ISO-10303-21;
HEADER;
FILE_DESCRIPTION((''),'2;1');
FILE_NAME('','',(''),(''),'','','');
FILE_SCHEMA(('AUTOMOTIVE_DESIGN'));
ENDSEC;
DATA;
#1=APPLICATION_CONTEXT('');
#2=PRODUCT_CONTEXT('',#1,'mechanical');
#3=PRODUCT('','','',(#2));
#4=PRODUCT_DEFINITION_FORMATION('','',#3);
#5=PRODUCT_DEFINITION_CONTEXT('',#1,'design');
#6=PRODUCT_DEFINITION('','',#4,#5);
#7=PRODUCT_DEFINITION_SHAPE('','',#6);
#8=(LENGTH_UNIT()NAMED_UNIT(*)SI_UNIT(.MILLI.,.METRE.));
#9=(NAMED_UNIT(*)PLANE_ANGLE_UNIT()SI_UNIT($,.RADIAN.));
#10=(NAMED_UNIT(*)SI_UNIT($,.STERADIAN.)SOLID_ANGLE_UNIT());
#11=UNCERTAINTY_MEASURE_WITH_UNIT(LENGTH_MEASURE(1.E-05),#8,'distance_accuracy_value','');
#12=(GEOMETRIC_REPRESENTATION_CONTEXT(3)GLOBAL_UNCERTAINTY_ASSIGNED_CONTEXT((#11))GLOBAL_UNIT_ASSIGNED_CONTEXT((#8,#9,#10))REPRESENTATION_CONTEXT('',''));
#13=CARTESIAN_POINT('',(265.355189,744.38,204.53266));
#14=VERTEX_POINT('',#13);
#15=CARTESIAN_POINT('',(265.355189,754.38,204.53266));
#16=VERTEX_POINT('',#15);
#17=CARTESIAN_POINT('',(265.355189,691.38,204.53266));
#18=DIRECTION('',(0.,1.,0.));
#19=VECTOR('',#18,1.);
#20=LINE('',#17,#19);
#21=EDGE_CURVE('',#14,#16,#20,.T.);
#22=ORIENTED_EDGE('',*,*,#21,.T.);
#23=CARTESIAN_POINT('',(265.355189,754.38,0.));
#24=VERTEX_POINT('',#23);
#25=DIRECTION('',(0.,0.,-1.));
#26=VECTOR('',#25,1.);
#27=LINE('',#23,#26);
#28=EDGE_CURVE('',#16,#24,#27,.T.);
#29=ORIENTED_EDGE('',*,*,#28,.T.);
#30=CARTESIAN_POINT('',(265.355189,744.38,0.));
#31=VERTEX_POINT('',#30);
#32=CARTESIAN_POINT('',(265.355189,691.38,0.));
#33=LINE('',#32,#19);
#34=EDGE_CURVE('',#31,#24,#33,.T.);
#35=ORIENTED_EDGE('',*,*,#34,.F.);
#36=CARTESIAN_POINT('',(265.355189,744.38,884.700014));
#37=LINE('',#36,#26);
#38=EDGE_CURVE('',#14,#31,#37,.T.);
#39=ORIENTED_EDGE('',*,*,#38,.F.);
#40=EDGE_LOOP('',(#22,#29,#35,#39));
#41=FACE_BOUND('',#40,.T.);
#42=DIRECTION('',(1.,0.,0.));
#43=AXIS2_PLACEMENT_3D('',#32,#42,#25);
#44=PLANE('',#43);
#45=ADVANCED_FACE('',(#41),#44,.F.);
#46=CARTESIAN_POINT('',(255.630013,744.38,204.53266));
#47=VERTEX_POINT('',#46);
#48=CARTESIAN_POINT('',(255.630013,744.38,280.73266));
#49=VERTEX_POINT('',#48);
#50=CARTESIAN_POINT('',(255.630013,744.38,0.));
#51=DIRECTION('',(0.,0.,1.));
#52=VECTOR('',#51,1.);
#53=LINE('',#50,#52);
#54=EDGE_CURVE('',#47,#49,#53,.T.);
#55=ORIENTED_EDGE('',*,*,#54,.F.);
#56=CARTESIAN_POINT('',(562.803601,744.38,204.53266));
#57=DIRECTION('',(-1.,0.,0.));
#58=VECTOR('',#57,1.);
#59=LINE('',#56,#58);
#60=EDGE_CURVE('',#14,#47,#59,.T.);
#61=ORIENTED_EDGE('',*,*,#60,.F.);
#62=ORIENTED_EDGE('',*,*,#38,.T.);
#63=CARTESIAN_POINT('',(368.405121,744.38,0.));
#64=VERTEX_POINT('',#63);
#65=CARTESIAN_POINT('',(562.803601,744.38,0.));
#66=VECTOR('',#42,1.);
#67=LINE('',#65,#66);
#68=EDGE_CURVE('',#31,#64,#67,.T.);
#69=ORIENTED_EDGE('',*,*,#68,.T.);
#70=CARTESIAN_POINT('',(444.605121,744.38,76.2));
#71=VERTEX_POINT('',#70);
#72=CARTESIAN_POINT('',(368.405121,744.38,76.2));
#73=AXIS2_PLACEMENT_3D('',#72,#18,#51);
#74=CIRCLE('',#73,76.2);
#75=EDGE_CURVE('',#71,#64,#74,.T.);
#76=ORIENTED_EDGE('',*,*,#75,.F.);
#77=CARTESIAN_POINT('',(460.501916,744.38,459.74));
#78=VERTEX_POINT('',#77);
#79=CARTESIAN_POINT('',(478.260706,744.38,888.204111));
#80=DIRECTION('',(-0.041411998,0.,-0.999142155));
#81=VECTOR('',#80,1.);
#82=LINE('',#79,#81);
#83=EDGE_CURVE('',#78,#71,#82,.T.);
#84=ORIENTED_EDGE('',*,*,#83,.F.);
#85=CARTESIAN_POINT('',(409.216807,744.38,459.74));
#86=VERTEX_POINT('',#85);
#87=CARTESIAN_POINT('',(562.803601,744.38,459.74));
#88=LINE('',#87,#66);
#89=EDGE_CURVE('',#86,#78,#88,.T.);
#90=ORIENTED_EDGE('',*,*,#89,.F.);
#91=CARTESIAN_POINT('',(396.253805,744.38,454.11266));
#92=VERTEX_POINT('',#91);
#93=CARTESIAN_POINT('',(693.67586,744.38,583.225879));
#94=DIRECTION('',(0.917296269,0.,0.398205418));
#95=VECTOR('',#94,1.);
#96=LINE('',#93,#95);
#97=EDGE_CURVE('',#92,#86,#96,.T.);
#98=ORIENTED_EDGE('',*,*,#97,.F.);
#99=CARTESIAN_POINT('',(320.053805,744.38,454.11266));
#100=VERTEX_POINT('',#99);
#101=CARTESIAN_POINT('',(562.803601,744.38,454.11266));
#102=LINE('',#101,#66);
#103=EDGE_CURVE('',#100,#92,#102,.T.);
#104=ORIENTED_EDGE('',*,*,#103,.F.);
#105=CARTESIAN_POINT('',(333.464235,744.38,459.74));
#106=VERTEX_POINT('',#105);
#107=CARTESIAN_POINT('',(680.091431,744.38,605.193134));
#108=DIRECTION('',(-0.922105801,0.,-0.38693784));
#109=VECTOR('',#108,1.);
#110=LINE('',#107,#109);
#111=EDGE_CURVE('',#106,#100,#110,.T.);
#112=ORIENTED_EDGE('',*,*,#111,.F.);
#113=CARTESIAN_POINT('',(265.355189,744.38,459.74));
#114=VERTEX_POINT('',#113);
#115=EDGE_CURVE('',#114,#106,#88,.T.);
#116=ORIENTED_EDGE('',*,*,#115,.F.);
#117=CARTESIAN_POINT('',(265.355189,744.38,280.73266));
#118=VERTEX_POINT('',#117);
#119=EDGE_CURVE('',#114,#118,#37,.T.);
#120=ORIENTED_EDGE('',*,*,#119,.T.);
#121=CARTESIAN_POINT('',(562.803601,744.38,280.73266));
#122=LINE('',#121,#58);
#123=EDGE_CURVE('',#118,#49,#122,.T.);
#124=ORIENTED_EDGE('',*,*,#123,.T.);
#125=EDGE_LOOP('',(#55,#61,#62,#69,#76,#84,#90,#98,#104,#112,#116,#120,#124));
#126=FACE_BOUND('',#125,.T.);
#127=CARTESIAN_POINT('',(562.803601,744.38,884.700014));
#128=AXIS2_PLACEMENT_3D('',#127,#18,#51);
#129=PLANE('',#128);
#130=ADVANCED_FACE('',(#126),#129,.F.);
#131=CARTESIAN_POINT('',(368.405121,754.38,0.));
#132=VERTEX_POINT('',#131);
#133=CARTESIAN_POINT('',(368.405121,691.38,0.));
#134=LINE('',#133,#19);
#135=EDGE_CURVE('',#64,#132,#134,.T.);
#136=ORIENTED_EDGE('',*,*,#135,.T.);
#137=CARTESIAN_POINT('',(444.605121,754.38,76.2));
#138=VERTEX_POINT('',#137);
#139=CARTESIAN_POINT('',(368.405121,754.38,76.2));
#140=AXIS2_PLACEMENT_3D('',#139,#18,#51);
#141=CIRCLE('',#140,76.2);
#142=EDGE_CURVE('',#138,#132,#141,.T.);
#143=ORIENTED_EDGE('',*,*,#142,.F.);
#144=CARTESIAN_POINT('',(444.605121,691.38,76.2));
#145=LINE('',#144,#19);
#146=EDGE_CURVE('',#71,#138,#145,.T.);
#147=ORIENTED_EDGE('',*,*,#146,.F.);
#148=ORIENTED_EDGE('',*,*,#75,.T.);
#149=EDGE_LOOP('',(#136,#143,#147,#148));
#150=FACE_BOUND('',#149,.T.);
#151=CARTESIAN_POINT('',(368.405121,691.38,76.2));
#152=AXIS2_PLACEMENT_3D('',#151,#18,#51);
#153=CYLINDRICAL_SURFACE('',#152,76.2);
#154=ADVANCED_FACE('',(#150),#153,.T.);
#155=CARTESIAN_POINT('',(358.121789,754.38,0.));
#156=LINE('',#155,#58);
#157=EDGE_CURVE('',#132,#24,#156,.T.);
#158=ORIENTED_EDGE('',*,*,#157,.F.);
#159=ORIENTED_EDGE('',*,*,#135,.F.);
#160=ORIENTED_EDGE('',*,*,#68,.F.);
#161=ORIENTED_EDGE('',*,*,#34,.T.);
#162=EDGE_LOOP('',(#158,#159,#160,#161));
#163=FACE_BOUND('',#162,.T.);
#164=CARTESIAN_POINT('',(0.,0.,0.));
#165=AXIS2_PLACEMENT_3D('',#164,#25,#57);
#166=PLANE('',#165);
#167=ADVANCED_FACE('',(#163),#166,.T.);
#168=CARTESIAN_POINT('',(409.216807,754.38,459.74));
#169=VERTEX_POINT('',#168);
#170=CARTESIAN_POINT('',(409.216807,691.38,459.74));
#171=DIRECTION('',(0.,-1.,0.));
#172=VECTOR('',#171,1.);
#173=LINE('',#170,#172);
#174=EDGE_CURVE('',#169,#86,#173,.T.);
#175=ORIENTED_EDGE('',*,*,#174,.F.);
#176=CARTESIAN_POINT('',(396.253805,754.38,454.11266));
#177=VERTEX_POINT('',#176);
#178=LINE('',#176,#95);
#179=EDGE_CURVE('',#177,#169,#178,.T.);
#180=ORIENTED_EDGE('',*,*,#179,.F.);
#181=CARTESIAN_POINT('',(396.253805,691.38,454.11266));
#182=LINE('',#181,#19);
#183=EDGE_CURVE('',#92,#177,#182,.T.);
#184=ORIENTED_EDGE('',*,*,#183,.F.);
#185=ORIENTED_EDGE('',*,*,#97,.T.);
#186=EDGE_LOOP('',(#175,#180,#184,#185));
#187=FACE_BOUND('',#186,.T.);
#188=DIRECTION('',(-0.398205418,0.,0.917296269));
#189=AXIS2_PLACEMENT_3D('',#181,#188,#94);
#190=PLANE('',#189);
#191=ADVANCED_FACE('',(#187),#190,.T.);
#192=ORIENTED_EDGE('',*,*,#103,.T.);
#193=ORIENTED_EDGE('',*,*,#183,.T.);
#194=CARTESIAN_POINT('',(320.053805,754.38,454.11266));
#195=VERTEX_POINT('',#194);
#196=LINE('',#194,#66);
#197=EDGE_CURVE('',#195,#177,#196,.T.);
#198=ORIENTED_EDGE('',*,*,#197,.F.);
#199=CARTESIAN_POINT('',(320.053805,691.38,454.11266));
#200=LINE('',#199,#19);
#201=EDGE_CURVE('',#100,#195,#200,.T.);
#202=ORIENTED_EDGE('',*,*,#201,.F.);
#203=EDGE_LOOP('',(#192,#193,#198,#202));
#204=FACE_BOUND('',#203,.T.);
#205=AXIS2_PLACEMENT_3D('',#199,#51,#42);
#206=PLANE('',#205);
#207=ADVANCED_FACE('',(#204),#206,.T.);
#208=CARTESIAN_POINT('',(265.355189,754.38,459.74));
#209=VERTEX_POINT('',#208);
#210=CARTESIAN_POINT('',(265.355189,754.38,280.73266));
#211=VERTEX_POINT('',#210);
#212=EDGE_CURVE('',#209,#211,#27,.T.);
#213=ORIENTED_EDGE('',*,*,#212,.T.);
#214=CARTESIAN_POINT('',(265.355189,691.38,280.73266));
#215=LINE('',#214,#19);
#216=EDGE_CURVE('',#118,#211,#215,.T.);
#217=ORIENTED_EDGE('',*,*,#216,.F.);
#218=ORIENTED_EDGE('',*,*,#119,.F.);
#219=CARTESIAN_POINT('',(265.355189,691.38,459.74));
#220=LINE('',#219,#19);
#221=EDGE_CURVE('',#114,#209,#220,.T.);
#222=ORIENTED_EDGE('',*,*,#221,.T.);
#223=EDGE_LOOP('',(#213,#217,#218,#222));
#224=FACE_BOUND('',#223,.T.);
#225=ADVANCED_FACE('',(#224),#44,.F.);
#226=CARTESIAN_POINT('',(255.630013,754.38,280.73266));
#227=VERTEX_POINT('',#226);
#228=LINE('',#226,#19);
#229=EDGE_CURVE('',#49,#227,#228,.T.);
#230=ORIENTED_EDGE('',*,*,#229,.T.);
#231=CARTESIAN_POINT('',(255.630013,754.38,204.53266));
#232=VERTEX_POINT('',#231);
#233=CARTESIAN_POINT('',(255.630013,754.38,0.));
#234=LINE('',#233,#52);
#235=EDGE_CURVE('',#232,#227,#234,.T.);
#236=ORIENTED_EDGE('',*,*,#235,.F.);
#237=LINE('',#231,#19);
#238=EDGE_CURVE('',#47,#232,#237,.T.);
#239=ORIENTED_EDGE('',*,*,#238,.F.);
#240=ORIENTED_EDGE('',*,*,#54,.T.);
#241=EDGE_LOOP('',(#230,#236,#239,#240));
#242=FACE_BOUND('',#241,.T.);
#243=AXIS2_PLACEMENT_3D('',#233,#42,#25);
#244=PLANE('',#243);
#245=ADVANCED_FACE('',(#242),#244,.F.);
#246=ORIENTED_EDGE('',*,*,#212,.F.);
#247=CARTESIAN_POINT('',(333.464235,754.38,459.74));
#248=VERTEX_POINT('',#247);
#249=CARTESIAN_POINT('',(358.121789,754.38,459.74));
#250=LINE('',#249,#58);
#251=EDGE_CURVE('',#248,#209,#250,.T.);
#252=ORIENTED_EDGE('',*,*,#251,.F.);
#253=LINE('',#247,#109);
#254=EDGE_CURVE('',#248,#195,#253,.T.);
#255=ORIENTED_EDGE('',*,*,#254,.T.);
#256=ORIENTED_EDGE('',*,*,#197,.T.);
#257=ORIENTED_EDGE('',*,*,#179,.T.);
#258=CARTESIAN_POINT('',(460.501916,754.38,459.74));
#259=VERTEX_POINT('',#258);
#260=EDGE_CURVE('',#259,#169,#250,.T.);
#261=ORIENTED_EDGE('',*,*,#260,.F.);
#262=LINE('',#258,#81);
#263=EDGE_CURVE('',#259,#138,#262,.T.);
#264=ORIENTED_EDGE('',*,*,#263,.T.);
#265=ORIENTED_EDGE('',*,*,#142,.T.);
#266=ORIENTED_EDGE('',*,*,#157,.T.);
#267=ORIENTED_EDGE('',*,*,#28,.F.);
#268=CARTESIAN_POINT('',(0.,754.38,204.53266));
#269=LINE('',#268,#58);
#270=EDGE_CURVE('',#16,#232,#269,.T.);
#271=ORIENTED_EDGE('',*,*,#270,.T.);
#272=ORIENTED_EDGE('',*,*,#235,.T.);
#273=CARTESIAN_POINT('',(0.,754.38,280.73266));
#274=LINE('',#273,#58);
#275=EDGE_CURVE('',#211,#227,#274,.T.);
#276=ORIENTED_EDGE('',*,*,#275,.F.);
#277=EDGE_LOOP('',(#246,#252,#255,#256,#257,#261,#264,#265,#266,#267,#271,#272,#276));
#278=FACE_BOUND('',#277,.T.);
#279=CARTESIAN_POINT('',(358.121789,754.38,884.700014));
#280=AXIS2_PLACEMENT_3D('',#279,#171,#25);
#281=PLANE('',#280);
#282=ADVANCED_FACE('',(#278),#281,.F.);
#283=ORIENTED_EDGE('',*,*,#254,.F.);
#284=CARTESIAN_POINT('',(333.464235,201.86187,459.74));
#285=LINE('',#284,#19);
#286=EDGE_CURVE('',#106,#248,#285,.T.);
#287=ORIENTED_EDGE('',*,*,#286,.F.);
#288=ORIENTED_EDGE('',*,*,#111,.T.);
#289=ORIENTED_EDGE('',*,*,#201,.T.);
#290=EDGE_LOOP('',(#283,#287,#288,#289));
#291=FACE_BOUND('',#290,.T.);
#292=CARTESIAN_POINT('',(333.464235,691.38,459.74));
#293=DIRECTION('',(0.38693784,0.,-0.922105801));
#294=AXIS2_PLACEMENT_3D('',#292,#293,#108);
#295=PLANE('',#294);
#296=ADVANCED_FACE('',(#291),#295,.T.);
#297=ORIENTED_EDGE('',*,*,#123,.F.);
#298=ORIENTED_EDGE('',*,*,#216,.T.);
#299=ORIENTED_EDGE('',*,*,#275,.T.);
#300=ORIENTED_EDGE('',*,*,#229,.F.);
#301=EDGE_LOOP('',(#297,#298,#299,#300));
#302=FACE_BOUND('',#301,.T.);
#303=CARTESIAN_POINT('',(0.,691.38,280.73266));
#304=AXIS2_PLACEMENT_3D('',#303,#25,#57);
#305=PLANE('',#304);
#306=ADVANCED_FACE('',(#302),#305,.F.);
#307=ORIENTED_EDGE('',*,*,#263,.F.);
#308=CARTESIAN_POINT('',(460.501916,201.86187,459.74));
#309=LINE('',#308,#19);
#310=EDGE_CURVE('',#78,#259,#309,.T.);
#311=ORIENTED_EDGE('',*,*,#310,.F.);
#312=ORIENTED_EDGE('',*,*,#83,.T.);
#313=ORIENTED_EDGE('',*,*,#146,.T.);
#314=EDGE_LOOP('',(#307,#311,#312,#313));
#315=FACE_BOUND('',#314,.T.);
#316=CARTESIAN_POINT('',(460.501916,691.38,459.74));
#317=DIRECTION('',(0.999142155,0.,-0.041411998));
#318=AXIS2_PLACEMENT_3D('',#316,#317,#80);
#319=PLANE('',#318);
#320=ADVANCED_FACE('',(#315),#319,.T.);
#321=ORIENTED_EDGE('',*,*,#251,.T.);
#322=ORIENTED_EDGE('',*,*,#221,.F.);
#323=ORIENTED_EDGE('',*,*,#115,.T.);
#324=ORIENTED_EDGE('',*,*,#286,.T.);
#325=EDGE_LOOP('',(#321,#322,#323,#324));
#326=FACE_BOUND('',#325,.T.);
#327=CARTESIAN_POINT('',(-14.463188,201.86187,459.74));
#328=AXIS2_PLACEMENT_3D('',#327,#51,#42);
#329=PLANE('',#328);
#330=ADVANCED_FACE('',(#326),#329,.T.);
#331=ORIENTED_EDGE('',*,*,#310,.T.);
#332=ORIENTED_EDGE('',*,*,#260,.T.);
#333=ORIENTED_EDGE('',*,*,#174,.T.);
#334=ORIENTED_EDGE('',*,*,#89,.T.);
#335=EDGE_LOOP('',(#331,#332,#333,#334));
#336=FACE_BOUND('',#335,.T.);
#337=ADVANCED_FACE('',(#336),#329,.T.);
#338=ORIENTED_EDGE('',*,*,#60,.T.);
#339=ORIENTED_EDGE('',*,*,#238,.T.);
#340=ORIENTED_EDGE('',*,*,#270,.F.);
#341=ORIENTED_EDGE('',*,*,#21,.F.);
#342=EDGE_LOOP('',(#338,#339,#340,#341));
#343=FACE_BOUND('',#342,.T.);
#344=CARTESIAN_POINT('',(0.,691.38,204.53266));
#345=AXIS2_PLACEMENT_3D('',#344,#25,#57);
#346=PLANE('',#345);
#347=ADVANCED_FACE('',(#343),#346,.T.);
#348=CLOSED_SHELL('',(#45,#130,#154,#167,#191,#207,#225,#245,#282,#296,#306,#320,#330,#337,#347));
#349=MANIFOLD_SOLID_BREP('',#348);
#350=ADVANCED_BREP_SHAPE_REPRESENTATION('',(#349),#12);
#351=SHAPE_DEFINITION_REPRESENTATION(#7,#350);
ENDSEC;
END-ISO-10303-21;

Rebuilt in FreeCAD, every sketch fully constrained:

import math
import FreeCAD as App
import Part
import Sketcher
from FreeCAD import Vector
Q = App.Units.Quantity

doc = App.newDocument("Part")
body = doc.addObject("PartDesign::Body", "Body")

sketch1 = doc.addObject("Sketcher::SketchObject", "Sketch")
body.addObject(sketch1)
sketch1.AttachmentSupport = (doc.XY_Plane, [""])
sketch1.MapMode = "FlatFace"
sketch1.addGeometry([
    Part.LineSegment(Vector(138, 754, 0), Vector(138, 744, 0)),
    Part.LineSegment(Vector(138, 744, 0), Vector(563, 744, 0)),
    Part.LineSegment(Vector(563, 744, 0), Vector(563, 754, 0)),
    Part.LineSegment(Vector(563, 754, 0), Vector(138, 754, 0)),
], False)
sketch1.addConstraint([
    Sketcher.Constraint("Coincident", 0, 2, 1, 1),
    Sketcher.Constraint("Coincident", 1, 2, 2, 1),
    Sketcher.Constraint("Coincident", 2, 2, 3, 1),
    Sketcher.Constraint("Coincident", 3, 2, 0, 1),
    Sketcher.Constraint("Vertical", 0),
    Sketcher.Constraint("Horizontal", 1),
    Sketcher.Constraint("Vertical", 2),
    Sketcher.Constraint("Horizontal", 3),
    Sketcher.Constraint("DistanceY", -1, 1, 2, 2, Q("29.7 in")),
    Sketcher.Constraint("DistanceY", 0, 2, 0, 1, 10.0),
    Sketcher.Constraint("DistanceX", 1, 1, 1, 2, 424.84234),
    Sketcher.Constraint("DistanceX", -1, 1, 1, 2, 562.803601),
])
pad1 = doc.addObject("PartDesign::Pad", "Pad")
body.addObject(pad1)
pad1.Profile = sketch1
pad1.Length = Q("18.1 in")

sketch2 = doc.addObject("Sketcher::SketchObject", "Sketch001")
body.addObject(sketch2)
sketch2.AttachmentSupport = (doc.XZ_Plane, [""])
sketch2.MapMode = "FlatFace"
sketch2.AttachmentOffset = App.Placement(Vector(0, 0, -744.38), App.Rotation())
sketch2.addGeometry([
    Part.LineSegment(Vector(138, 460, 0), Vector(138, 0, 0)),
    Part.LineSegment(Vector(138, 0, 0), Vector(256, 0, 0)),
    Part.LineSegment(Vector(256, 0, 0), Vector(256, 460, 0)),
    Part.LineSegment(Vector(256, 460, 0), Vector(138, 460, 0)),
], False)
sketch2.addConstraint([
    Sketcher.Constraint("Coincident", 0, 2, 1, 1),
    Sketcher.Constraint("Coincident", 1, 2, 2, 1),
    Sketcher.Constraint("Coincident", 2, 2, 3, 1),
    Sketcher.Constraint("Coincident", 3, 2, 0, 1),
    Sketcher.Constraint("Vertical", 0),
    Sketcher.Constraint("Horizontal", 1),
    Sketcher.Constraint("Vertical", 2),
    Sketcher.Constraint("Horizontal", 3),
    Sketcher.Constraint("PointOnObject", 0, 2, -1),
    Sketcher.Constraint("DistanceY", 0, 2, 0, 1, Q("18.1 in")),
    Sketcher.Constraint("DistanceX", 1, 1, 1, 2, 117.668752),
    Sketcher.Constraint("DistanceX", -1, 1, 0, 2, 137.961261),
])
pocket1 = doc.addObject("PartDesign::Pocket", "Pocket")
body.addObject(pocket1)
pocket1.Profile = sketch2
pocket1.Length = 10

sketch3 = doc.addObject("Sketcher::SketchObject", "Sketch002")
body.addObject(sketch3)
sketch3.AttachmentSupport = (doc.XZ_Plane, [""])
sketch3.MapMode = "FlatFace"
sketch3.AttachmentOffset = App.Placement(Vector(0, 0, -29.7 * 25.4), App.Rotation())
sketch3.addGeometry([
    Part.LineSegment(Vector(256, 281, 0), Vector(256, 460, 0)),
    Part.LineSegment(Vector(256, 460, 0), Vector(265, 460, 0)),
    Part.LineSegment(Vector(265, 460, 0), Vector(265, 281, 0)),
    Part.LineSegment(Vector(265, 281, 0), Vector(256, 281, 0)),
    Part.LineSegment(Vector(256, 0, 0), Vector(256, 205, 0)),
    Part.LineSegment(Vector(256, 205, 0), Vector(265, 205, 0)),
    Part.LineSegment(Vector(265, 205, 0), Vector(265, 0, 0)),
    Part.LineSegment(Vector(265, 0, 0), Vector(256, 0, 0)),
    Part.LineSegment(Vector(333, 460, 0), Vector(370, 562, 0)),
    Part.LineSegment(Vector(370, 562, 0), Vector(604, 526, 0)),
    Part.LineSegment(Vector(604, 526, 0), Vector(681, -161, 0)),
    Part.LineSegment(Vector(681, -161, 0), Vector(359, -102, 0)),
    Part.LineSegment(Vector(359, -102, 0), Vector(368, 0, 0)),
    Part.ArcOfCircle(Part.Circle(Vector(368, 76, 0), Vector(0, 0, 1), 76), math.radians(-90), math.radians(0)),
    Part.LineSegment(Vector(445, 76, 0), Vector(461, 460, 0)),
    Part.LineSegment(Vector(461, 460, 0), Vector(409, 460, 0)),
    Part.LineSegment(Vector(409, 460, 0), Vector(396, 454, 0)),
    Part.LineSegment(Vector(396, 454, 0), Vector(320, 454, 0)),
    Part.LineSegment(Vector(320, 454, 0), Vector(333, 460, 0)),
], False)
sketch3.addConstraint([
    Sketcher.Constraint("Coincident", 0, 2, 1, 1),
    Sketcher.Constraint("Coincident", 1, 2, 2, 1),
    Sketcher.Constraint("Coincident", 2, 2, 3, 1),
    Sketcher.Constraint("Coincident", 3, 2, 0, 1),
    Sketcher.Constraint("Coincident", 4, 2, 5, 1),
    Sketcher.Constraint("Coincident", 5, 2, 6, 1),
    Sketcher.Constraint("Coincident", 6, 2, 7, 1),
    Sketcher.Constraint("Coincident", 7, 2, 4, 1),
    Sketcher.Constraint("Coincident", 8, 2, 9, 1),
    Sketcher.Constraint("Coincident", 9, 2, 10, 1),
    Sketcher.Constraint("Coincident", 10, 2, 11, 1),
    Sketcher.Constraint("Coincident", 11, 2, 12, 1),
    Sketcher.Constraint("Coincident", 12, 2, 13, 1),
    Sketcher.Constraint("Coincident", 13, 2, 14, 1),
    Sketcher.Constraint("Coincident", 14, 2, 15, 1),
    Sketcher.Constraint("Coincident", 15, 2, 16, 1),
    Sketcher.Constraint("Coincident", 16, 2, 17, 1),
    Sketcher.Constraint("Coincident", 17, 2, 18, 1),
    Sketcher.Constraint("Coincident", 18, 2, 8, 1),
    Sketcher.Constraint("Vertical", 0),
    Sketcher.Constraint("Horizontal", 1),
    Sketcher.Constraint("Vertical", 2),
    Sketcher.Constraint("Horizontal", 3),
    Sketcher.Constraint("Vertical", 4),
    Sketcher.Constraint("Horizontal", 5),
    Sketcher.Constraint("Vertical", 6),
    Sketcher.Constraint("Horizontal", 7),
    Sketcher.Constraint("Horizontal", 15),
    Sketcher.Constraint("Horizontal", 17),
    Sketcher.Constraint("PointOnObject", 6, 2, -1),
    Sketcher.Constraint("PointOnObject", 12, 2, -1),
    Sketcher.Constraint("Horizontal", 1, 2, 14, 2),
    Sketcher.Constraint("Horizontal", 15, 2, 18, 2),
    Sketcher.Constraint("Vertical", 3, 2, 4, 2),
    Sketcher.Constraint("Vertical", 2, 2, 5, 2),
    Sketcher.Constraint("Vertical", 13, 3, 12, 2),
    Sketcher.Constraint("Radius", 13, Q("3 in")),
    Sketcher.Constraint("DistanceX", 17, 2, 17, 1, Q("3 in")),
    Sketcher.Constraint("DistanceY", -1, 1, 13, 2, Q("3 in")),
    Sketcher.Constraint("DistanceY", 4, 2, 3, 2, Q("3 in")),
    Sketcher.Constraint("DistanceY", -1, 1, 0, 2, Q("18.1 in")),
    Sketcher.Constraint("Distance", 10, 691.106901),
    Sketcher.Constraint("Distance", 14, 383.8693),
    Sketcher.Constraint("DistanceX", 15, 2, 15, 1, 51.285109),
    Sketcher.Constraint("DistanceY", 0, 1, 0, 2, 179.00734),
    Sketcher.Constraint("DistanceX", 0, 2, 9, 2, 348.617199),
    Sketcher.Constraint("Distance", 8, 108.359548),
    Sketcher.Constraint("Distance", 16, 14.131751),
    Sketcher.Constraint("DistanceX", 1, 1, 1, 2, 9.725175),
    Sketcher.Constraint("DistanceX", -1, 1, 13, 3, 368.405121),
    Sketcher.Constraint("DistanceX", -1, 1, 1, 2, 265.355189),
    Sketcher.Constraint("DistanceY", -1, 1, 8, 2, 561.839328),
    Sketcher.Constraint("DistanceX", -1, 1, 10, 2, 681.481359),
    Sketcher.Constraint("DistanceY", 10, 2, -1, 1, 161.109232),
    Sketcher.Constraint("DistanceY", -1, 1, 16, 2, 454.11266),
    Sketcher.Constraint("DistanceX", 1, 2, 8, 2, 104.406689),
    Sketcher.Constraint("Distance", 11, 328.137115),
    Sketcher.Constraint("Distance", 12, 102.304026),
])
pocket2 = doc.addObject("PartDesign::Pocket", "Pocket001")
body.addObject(pocket2)
pocket2.Profile = sketch3
pocket2.Length = 63
pocket2.Reversed = True

doc.recompute()
